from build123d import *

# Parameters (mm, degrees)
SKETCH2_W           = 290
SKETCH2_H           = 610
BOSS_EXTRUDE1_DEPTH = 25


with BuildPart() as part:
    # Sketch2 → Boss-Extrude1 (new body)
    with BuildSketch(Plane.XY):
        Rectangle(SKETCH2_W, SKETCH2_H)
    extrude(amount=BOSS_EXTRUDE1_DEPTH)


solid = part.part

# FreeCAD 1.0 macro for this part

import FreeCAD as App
import Part
import Sketcher

V = App.Vector
Q = App.Units.Quantity

doc = App.newDocument("Part")
body = doc.addObject("PartDesign::Body", "Body")

# Sketch on XY plane
sketch1 = body.newObject("Sketcher::SketchObject", "Sketch")
sketch1.AttachmentSupport = (doc.getObject("XY_Plane"), [""])
sketch1.MapMode = "FlatFace"
sketch1.addGeometry([
    Part.LineSegment(V(-145, 305, 0), V(-145, -305, 0)),
    Part.LineSegment(V(-145, -305, 0), V(145, -305, 0)),
    Part.LineSegment(V(145, -305, 0), V(145, 305, 0)),
    Part.LineSegment(V(145, 305, 0), V(-145, 305, 0)),
], False)
sketch1.addConstraint([
    Sketcher.Constraint("Coincident", 0, 2, 1, 1),
    Sketcher.Constraint("Coincident", 1, 2, 2, 1),
    Sketcher.Constraint("Coincident", 2, 2, 3, 1),
    Sketcher.Constraint("Coincident", 3, 2, 0, 1),
    Sketcher.Constraint("Vertical", 0),
    Sketcher.Constraint("Horizontal", 1),
    Sketcher.Constraint("Vertical", 2),
    Sketcher.Constraint("Horizontal", 3),
    Sketcher.Constraint("Symmetric", 0, 2, 2, 2, -1, 1),
    Sketcher.Constraint("DistanceX", 1, 1, 1, 2, Q("290 mm")),
    Sketcher.Constraint("DistanceY", 0, 2, 0, 1, Q("610 mm")),
])
pad1 = body.newObject("PartDesign::Pad", "Pad")
pad1.Profile = sketch1
pad1.Length = 25

doc.recompute()
